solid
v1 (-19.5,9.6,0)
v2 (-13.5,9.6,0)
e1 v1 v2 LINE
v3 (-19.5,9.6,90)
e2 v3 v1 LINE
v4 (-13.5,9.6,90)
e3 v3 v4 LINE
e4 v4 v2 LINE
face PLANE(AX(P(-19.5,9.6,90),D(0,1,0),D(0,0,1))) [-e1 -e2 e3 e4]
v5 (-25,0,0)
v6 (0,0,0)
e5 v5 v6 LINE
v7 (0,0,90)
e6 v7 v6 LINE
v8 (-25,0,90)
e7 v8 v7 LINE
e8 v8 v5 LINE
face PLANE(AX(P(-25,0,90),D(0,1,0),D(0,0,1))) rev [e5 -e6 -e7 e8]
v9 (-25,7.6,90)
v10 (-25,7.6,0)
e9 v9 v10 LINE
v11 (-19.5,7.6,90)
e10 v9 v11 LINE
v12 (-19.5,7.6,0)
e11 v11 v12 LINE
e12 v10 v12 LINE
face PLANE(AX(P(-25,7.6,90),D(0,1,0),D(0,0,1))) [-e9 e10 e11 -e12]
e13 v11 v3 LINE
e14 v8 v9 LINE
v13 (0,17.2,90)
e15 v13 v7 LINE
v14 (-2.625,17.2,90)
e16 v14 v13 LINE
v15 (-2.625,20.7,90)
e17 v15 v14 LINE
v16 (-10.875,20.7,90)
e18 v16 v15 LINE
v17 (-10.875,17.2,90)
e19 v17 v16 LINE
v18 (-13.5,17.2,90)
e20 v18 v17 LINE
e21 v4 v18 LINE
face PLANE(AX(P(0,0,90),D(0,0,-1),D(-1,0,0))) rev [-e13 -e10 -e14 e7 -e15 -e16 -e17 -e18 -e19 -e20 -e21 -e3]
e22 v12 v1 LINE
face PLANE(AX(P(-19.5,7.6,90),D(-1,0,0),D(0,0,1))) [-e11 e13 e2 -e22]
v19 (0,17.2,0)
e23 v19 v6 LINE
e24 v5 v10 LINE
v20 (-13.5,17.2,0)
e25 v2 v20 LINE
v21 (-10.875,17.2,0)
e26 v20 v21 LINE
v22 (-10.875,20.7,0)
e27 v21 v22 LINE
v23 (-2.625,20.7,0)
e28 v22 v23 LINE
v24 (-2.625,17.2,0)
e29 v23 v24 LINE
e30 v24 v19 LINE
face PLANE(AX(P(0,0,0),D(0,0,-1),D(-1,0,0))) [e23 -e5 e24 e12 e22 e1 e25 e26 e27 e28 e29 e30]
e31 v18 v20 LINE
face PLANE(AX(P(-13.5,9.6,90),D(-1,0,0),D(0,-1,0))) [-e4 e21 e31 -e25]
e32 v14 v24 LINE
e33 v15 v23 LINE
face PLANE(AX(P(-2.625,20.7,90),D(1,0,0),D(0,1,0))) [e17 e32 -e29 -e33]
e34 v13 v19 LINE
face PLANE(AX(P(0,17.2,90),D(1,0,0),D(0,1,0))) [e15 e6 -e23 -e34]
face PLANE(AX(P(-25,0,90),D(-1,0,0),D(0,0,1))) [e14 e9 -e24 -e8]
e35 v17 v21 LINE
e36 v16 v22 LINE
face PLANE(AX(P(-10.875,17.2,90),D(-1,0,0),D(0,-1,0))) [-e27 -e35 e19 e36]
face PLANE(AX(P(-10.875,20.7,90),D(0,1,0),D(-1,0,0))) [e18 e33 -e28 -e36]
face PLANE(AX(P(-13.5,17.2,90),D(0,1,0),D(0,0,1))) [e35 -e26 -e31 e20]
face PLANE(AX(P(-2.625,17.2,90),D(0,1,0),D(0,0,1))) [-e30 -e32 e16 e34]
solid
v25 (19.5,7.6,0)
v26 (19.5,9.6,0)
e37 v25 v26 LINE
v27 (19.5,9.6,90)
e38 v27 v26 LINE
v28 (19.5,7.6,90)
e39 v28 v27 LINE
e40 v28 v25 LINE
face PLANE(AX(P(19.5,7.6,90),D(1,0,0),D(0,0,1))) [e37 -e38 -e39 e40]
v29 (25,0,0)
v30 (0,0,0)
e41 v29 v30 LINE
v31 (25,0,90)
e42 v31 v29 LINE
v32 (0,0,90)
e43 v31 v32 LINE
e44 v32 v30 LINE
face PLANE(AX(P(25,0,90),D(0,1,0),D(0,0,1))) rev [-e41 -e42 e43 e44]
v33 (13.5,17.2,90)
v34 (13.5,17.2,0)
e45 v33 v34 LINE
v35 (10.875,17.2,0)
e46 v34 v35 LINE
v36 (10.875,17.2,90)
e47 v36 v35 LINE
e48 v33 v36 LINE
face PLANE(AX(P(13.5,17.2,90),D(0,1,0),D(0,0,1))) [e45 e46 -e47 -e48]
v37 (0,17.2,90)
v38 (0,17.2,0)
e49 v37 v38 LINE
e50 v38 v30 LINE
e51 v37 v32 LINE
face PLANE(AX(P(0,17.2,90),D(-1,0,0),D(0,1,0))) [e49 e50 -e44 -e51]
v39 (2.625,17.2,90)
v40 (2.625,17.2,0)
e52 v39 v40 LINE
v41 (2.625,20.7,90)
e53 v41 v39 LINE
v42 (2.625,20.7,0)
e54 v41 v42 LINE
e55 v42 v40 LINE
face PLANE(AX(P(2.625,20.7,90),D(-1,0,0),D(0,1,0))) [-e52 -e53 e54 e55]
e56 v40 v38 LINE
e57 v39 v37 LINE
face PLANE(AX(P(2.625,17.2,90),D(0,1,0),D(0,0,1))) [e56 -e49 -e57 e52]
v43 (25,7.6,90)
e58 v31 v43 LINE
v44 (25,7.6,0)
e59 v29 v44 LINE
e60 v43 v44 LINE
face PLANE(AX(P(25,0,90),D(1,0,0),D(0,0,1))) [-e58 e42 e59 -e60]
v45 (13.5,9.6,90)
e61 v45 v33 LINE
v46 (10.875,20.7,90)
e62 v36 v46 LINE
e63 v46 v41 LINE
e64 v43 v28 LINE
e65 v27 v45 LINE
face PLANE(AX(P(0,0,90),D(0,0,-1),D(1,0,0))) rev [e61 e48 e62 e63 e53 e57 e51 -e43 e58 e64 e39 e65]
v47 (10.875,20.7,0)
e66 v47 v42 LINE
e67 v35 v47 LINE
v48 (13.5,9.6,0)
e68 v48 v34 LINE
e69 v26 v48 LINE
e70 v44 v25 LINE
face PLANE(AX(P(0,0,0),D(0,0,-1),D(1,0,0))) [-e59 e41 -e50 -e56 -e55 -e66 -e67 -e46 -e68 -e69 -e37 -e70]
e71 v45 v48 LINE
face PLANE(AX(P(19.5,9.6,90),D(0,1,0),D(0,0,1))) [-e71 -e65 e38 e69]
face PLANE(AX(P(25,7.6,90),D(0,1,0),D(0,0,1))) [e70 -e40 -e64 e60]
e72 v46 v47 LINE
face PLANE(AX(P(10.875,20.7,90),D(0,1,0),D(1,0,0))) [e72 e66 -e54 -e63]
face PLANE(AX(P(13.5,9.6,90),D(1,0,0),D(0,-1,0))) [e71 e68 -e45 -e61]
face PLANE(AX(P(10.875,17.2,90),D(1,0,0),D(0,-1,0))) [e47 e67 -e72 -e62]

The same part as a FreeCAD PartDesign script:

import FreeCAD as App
import Part
import Sketcher
from FreeCAD import Vector


def add_polygon(sketch, points):
    """Adds a closed chain of lines whose ends are joined by coincident constraints."""
    first, n = sketch.GeometryCount, len(points)
    for a, b in zip(points, points[1:] + points[:1]):
        sketch.addGeometry(Part.LineSegment(App.Vector(*a, 0), App.Vector(*b, 0)), False)
    for i in range(n):
        sketch.addConstraint(Sketcher.Constraint("Coincident", first + i, 2, first + (i + 1) % n, 1))

doc = App.newDocument("Part")
body = doc.addObject("PartDesign::Body", "Body")

sketch1 = body.newObject("Sketcher::SketchObject", "Sketch")
sketch1.AttachmentSupport = (doc.getObject("XY_Plane"), [""])
sketch1.MapMode = "FlatFace"
add_polygon(sketch1, [(-25, 7.6), (-25, 0), (0, 0), (0, 17.2), (-2.6, 17.2), (-2.6, 20.7), (-10.9, 20.7), (-10.9, 17.2), (-13.5, 17.2), (-13.5, 9.6), (-19.5, 9.6), (-19.5, 7.6)])
sketch1.addConstraint(Sketcher.Constraint("Vertical", 0))
sketch1.addConstraint(Sketcher.Constraint("Horizontal", 1))
sketch1.addConstraint(Sketcher.Constraint("Vertical", 2))
sketch1.addConstraint(Sketcher.Constraint("Horizontal", 3))
sketch1.addConstraint(Sketcher.Constraint("Vertical", 4))
sketch1.addConstraint(Sketcher.Constraint("Horizontal", 5))
sketch1.addConstraint(Sketcher.Constraint("Vertical", 6))
sketch1.addConstraint(Sketcher.Constraint("Horizontal", 7))
sketch1.addConstraint(Sketcher.Constraint("Vertical", 8))
sketch1.addConstraint(Sketcher.Constraint("Horizontal", 9))
sketch1.addConstraint(Sketcher.Constraint("Vertical", 10))
sketch1.addConstraint(Sketcher.Constraint("Horizontal", 11))
sketch1.addConstraint(Sketcher.Constraint("Coincident", 1, 2, -1, 1))
sketch1.addConstraint(Sketcher.Constraint("Horizontal", 3, 2, 6, 2))
sketch1.addConstraint(Sketcher.Constraint("Equal", 3, 7))
sketch1.addConstraint(Sketcher.Constraint("Equal", 0, 8))
sketch1.addConstraint(Sketcher.Constraint("DistanceX", 1, 1, 1, 2, 25.0))
sketch1.addConstraint(Sketcher.Constraint("DistanceX", 9, 2, 9, 1, 6.0))
sketch1.addConstraint(Sketcher.Constraint("DistanceY", 10, 2, 10, 1, 2.0))
sketch1.addConstraint(Sketcher.Constraint("DistanceX", 11, 2, 11, 1, 5.5))
sketch1.addConstraint(Sketcher.Constraint("DistanceY", 0, 2, 0, 1, 7.6))
sketch1.addConstraint(Sketcher.Constraint("DistanceY", 4, 1, 4, 2, 3.5))
sketch1.addConstraint(Sketcher.Constraint("DistanceX", 5, 2, 5, 1, 8.25))
pad1 = body.newObject("PartDesign::Pad", "Pad")
pad1.Profile = sketch1
pad1.Length = 90
body2 = doc.addObject("PartDesign::Body", "Body001")
doc.recompute()

mirroring = doc.addObject("Part::Mirroring", "Mirroring")
mirroring.Source = body
mirroring.Base = Vector(0, 17.2, 90)
mirroring.Normal = Vector(1, 0, 0)
body2.BaseFeature = mirroring
doc.recompute()
mirroring.Visibility = False

doc.recompute()
